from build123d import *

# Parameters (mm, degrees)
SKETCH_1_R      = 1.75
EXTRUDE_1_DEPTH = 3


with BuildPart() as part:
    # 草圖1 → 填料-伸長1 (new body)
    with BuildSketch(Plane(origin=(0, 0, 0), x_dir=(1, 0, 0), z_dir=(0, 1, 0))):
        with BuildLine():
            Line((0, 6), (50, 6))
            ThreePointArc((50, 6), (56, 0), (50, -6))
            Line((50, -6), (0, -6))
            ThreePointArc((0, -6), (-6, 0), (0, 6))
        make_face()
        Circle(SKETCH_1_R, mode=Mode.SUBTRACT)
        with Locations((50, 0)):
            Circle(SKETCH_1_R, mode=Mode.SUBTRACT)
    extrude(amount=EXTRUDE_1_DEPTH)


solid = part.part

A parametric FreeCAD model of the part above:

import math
import FreeCAD as App
import Part
import Sketcher

doc = App.newDocument("Part")
params = doc.addObject("Spreadsheet::Sheet", "Params")
for row, (alias, value) in enumerate([
    ("sketch1_radius", "6 mm"),
    ("sketch1_diameter", "3.5 mm"),
    ("sketch1_width", "50 mm"),
    ("pad1_length", "3 mm"),
], start=1):
    params.set(f"A{row}", alias)
    params.set(f"B{row}", "=" + value)
    params.setAlias(f"B{row}", alias)

body = doc.addObject("PartDesign::Body", "Body")

# Sketch on XZ plane
sketch1 = body.newObject("Sketcher::SketchObject", "Sketch")
sketch1.AttachmentSupport = (doc.getObject("XZ_Plane"), [""])
sketch1.MapMode = "FlatFace"
sketch1.addGeometry([
    Part.LineSegment(App.Vector(50, -6, 0), App.Vector(0, -6, 0)),  # 0
    Part.ArcOfCircle(Part.Circle(App.Vector(0, 0, 0), App.Vector(0, 0, 1), 6), math.radians(90), math.radians(270)),  # 1
    Part.LineSegment(App.Vector(0, 6, 0), App.Vector(50, 6, 0)),  # 2
    Part.ArcOfCircle(Part.Circle(App.Vector(50, 0, 0), App.Vector(0, 0, 1), 6), math.radians(-90), math.radians(90)),  # 3
    Part.Circle(App.Vector(50, 0, 0), App.Vector(0, 0, 1), 1.8),  # 4
    Part.Circle(App.Vector(0, 0, 0), App.Vector(0, 0, 1), 1.8),  # 5
], False)
sketch1.addConstraint([
    Sketcher.Constraint("Tangent", 0, 2, 1, 2),
    Sketcher.Constraint("Tangent", 1, 1, 2, 1),
    Sketcher.Constraint("Tangent", 2, 2, 3, 2),
    Sketcher.Constraint("Tangent", 3, 1, 0, 1),
    Sketcher.Constraint("Horizontal", 0),
    Sketcher.Constraint("Horizontal", 2),
    Sketcher.Constraint("Coincident", 1, 3, -1, 1),
    Sketcher.Constraint("Coincident", 5, 3, -1, 1),
    Sketcher.Constraint("Coincident", 4, 3, 3, 3),
    Sketcher.Constraint("Equal", 4, 5),
    Sketcher.Constraint("Radius", 1, 6.0),
    Sketcher.Constraint("Diameter", 4, 3.5),
    Sketcher.Constraint("DistanceX", 0, 2, 0, 1, 50.0),
])
sketch1.setExpression("Constraints[10]", "Params.sketch1_radius")
sketch1.setExpression("Constraints[11]", "Params.sketch1_diameter")
sketch1.setExpression("Constraints[12]", "Params.sketch1_width")
pad1 = body.newObject("PartDesign::Pad", "Pad")
pad1.Profile = sketch1
pad1.setExpression("Length", "Params.pad1_length")
pad1.Reversed = True

doc.recompute()
